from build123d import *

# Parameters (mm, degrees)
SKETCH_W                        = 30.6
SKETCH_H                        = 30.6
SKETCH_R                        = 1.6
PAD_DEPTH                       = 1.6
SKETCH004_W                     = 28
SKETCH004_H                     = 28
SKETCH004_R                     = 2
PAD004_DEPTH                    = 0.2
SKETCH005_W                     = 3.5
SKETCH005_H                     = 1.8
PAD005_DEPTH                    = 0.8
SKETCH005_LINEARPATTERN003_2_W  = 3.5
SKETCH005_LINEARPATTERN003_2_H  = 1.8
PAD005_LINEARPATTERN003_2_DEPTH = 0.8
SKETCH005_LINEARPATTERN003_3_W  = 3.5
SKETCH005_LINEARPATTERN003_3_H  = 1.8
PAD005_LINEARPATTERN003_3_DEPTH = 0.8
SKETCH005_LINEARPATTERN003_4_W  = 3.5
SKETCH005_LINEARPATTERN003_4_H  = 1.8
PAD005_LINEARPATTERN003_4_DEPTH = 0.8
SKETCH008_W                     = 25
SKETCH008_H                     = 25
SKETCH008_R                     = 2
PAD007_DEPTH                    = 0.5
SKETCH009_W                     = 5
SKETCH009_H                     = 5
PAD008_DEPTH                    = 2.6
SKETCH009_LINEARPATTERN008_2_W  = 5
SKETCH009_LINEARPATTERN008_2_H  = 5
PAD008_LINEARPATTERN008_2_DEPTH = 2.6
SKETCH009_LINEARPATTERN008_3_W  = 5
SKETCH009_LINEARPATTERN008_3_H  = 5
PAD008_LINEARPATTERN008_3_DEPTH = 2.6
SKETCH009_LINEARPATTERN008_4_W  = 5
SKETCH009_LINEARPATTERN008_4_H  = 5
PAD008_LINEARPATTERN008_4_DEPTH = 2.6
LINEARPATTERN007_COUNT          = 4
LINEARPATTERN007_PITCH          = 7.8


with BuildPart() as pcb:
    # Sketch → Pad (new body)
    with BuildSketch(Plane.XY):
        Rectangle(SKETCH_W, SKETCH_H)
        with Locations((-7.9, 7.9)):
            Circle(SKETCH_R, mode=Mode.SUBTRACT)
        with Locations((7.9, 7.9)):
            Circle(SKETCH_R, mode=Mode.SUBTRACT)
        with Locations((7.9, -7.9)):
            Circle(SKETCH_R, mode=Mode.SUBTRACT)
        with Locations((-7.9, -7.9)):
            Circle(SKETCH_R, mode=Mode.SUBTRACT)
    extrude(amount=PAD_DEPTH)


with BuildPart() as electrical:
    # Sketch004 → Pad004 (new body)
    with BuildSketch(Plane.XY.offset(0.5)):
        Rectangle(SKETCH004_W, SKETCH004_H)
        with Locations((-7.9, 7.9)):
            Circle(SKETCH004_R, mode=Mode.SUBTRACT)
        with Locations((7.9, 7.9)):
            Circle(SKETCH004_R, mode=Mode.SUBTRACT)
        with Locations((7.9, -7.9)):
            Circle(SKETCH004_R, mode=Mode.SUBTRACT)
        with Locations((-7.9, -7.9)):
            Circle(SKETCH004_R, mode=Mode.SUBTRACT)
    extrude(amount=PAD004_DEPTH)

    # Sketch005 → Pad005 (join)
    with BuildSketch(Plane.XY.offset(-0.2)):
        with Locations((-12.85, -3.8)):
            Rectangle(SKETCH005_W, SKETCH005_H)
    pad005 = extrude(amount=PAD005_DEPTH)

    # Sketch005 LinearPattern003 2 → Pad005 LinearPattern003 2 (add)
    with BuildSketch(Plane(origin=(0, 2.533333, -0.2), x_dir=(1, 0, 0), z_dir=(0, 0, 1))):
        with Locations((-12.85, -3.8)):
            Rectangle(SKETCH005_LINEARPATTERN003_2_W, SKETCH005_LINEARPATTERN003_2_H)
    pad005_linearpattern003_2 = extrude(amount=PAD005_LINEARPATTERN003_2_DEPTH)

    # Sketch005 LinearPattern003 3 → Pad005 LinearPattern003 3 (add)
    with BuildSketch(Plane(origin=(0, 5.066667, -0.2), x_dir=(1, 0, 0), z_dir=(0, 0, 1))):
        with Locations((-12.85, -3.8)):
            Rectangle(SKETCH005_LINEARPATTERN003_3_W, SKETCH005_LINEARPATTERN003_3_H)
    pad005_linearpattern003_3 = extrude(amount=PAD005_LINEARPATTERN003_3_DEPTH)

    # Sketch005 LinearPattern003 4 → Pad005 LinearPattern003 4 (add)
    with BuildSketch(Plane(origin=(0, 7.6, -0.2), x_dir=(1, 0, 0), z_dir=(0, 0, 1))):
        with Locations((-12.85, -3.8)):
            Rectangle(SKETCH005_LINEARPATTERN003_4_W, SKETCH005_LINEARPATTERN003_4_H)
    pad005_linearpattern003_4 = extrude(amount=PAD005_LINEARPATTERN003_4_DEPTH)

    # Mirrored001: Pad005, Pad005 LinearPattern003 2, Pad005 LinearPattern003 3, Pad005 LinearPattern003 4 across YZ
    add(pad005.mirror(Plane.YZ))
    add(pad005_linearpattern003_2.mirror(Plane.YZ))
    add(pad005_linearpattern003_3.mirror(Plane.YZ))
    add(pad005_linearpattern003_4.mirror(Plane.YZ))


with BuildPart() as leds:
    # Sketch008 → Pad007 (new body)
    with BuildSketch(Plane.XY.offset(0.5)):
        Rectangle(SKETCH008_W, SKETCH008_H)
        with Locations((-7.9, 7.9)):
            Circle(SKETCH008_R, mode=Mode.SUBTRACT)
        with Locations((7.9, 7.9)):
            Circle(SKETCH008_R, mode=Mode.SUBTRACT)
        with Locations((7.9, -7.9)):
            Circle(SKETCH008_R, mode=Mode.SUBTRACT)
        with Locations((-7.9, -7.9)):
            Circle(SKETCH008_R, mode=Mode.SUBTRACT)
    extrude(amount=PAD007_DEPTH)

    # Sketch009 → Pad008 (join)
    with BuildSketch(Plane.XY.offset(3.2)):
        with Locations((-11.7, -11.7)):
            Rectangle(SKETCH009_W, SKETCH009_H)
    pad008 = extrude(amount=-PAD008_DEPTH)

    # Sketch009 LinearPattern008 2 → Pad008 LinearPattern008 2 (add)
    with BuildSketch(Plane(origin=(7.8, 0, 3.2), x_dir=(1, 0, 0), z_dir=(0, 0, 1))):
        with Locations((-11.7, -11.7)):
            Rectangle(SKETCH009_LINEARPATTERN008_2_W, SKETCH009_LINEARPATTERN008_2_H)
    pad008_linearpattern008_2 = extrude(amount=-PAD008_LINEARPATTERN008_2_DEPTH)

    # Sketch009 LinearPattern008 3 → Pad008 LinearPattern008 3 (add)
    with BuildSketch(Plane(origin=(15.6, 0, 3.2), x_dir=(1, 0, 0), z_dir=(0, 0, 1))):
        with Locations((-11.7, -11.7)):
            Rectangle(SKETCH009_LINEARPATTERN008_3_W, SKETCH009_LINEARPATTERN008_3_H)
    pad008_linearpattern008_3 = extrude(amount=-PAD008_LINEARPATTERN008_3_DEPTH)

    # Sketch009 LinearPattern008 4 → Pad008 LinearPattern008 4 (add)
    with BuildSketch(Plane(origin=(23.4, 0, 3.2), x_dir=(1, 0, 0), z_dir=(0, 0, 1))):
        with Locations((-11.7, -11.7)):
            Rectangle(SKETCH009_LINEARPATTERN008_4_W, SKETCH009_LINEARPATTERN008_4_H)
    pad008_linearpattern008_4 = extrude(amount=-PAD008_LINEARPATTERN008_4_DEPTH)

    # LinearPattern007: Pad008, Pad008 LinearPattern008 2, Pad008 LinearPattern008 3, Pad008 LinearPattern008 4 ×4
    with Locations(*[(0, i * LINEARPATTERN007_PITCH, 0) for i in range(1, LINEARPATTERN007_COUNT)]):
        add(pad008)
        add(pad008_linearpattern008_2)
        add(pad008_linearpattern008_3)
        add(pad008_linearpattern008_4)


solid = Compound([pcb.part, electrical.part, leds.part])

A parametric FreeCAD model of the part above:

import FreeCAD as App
import Part
import Sketcher

V = App.Vector


def add_polygon(sketch, points):
    """Adds a closed chain of lines whose ends are joined by coincident constraints."""
    first, n = sketch.GeometryCount, len(points)
    for a, b in zip(points, points[1:] + points[:1]):
        sketch.addGeometry(Part.LineSegment(App.Vector(*a, 0), App.Vector(*b, 0)), False)
    for i in range(n):
        sketch.addConstraint(Sketcher.Constraint("Coincident", first + i, 2, first + (i + 1) % n, 1))

doc = App.newDocument("Part")
body = doc.addObject("PartDesign::Body", "Body")

sketch1 = body.newObject("Sketcher::SketchObject", "Sketch")
sketch1.AttachmentSupport = (doc.getObject("XY_Plane"), [""])
sketch1.MapMode = "FlatFace"
add_polygon(sketch1, [(-15.3, 15.3), (-15.3, -15.3), (15.3, -15.3), (15.3, 15.3)])
sketch1.addGeometry(Part.Circle(V(-7.9, -7.9, 0), V(0, 0, 1), 1.6), False)
sketch1.addGeometry(Part.Circle(V(7.9, -7.9, 0), V(0, 0, 1), 1.6), False)
sketch1.addGeometry(Part.Circle(V(-7.9, 7.9, 0), V(0, 0, 1), 1.6), False)
sketch1.addGeometry(Part.Circle(V(7.9, 7.9, 0), V(0, 0, 1), 1.6), False)
sketch1.addConstraint([
    Sketcher.Constraint("Vertical", 0),
    Sketcher.Constraint("Horizontal", 1),
    Sketcher.Constraint("Vertical", 2),
    Sketcher.Constraint("Horizontal", 3),
    Sketcher.Constraint("Equal", 4, 5),
    Sketcher.Constraint("Equal", 5, 6),
    Sketcher.Constraint("Equal", 6, 7),
    Sketcher.Constraint("Symmetric", 5, 3, 6, 3, -1, 1),
    Sketcher.Constraint("Symmetric", 4, 3, 7, 3, -1, 1),
    Sketcher.Constraint("Symmetric", 0, 2, 2, 2, -1, 1),
    Sketcher.Constraint("Symmetric", 4, 3, 5, 3, -2),
    Sketcher.Constraint("Equal", 3, 0),
    Sketcher.Constraint("Diameter", 4, 3.2),
    Sketcher.Constraint("DistanceX", 1, 1, 1, 2, 30.6),
    Sketcher.Constraint("DistanceX", 4, 3, -1, 1, 7.9),
    Sketcher.Constraint("DistanceY", 4, 3, -1, 1, 7.9),
])
pad1 = body.newObject("PartDesign::Pad", "Pad")
pad1.Profile = sketch1
pad1.Length = 1.6
body2 = doc.addObject("PartDesign::Body", "Body001")

sketch2 = body2.newObject("Sketcher::SketchObject", "Sketch001")
sketch2.AttachmentSupport = (doc.getObject("XY_Plane001"), [""])
sketch2.MapMode = "FlatFace"
sketch2.AttachmentOffset = App.Placement(V(0, 0, 0.5), App.Rotation())
add_polygon(sketch2, [(-14, 14), (-14, -14), (14, -14), (14, 14)])
sketch2.addGeometry(Part.Circle(V(-7.9, -7.9, 0), V(0, 0, 1), 2), False)
sketch2.addGeometry(Part.Circle(V(7.9, -7.9, 0), V(0, 0, 1), 2), False)
sketch2.addGeometry(Part.Circle(V(-7.9, 7.9, 0), V(0, 0, 1), 2), False)
sketch2.addGeometry(Part.Circle(V(7.9, 7.9, 0), V(0, 0, 1), 2), False)
sketch2.addConstraint([
    Sketcher.Constraint("Vertical", 0),
    Sketcher.Constraint("Horizontal", 1),
    Sketcher.Constraint("Vertical", 2),
    Sketcher.Constraint("Horizontal", 3),
    Sketcher.Constraint("Equal", 4, 5),
    Sketcher.Constraint("Equal", 5, 6),
    Sketcher.Constraint("Equal", 6, 7),
    Sketcher.Constraint("Symmetric", 5, 3, 6, 3, -1, 1),
    Sketcher.Constraint("Symmetric", 4, 3, 7, 3, -1, 1),
    Sketcher.Constraint("Symmetric", 0, 2, 2, 2, -1, 1),
    Sketcher.Constraint("Symmetric", 4, 3, 5, 3, -2),
    Sketcher.Constraint("Equal", 3, 0),
    Sketcher.Constraint("Diameter", 4, 4.0),
    Sketcher.Constraint("DistanceX", 1, 1, 1, 2, 28.0),
    Sketcher.Constraint("DistanceX", 4, 3, -1, 1, 7.9),
    Sketcher.Constraint("DistanceY", 4, 3, -1, 1, 7.9),
])
pad2 = body2.newObject("PartDesign::Pad", "Pad001")
pad2.Profile = sketch2
pad2.Length = 0.2

sketch3 = body2.newObject("Sketcher::SketchObject", "Sketch002")
sketch3.AttachmentSupport = (doc.getObject("XY_Plane001"), [""])
sketch3.MapMode = "FlatFace"
sketch3.AttachmentOffset = App.Placement(V(0, 0, -0.2), App.Rotation())
add_polygon(sketch3, [(-14.6, -2.9), (-14.6, -4.7), (-11.1, -4.7), (-11.1, -2.9)])
sketch3.addConstraint([
    Sketcher.Constraint("Vertical", 0),
    Sketcher.Constraint("Horizontal", 1),
    Sketcher.Constraint("Vertical", 2),
    Sketcher.Constraint("Horizontal", 3),
    Sketcher.Constraint("DistanceX", 1, 1, 1, 2, 3.5),
    Sketcher.Constraint("DistanceY", 0, 2, 0, 1, 1.8),
    Sketcher.Constraint("DistanceX", 0, 2, -1, 1, 14.6),
    Sketcher.Constraint("DistanceY", 0, 2, -1, 1, 4.7),
])
pad3 = body2.newObject("PartDesign::Pad", "Pad002")
pad3.Profile = sketch3
pad3.Length = 0.8

sketch4 = body2.newObject("Sketcher::SketchObject", "Sketch003")
sketch4.AttachmentSupport = (doc.getObject("XY_Plane001"), [""])
sketch4.MapMode = "FlatFace"
sketch4.AttachmentOffset = App.Placement(V(0, 0, -0.2), App.Rotation())
add_polygon(sketch4, [(-14.6, -0.4), (-14.6, -2.2), (-11.1, -2.2), (-11.1, -0.4)])
sketch4.addConstraint([
    Sketcher.Constraint("Vertical", 0),
    Sketcher.Constraint("Horizontal", 1),
    Sketcher.Constraint("Vertical", 2),
    Sketcher.Constraint("Horizontal", 3),
    Sketcher.Constraint("DistanceX", 1, 1, 1, 2, 3.5),
    Sketcher.Constraint("DistanceY", 0, 2, 0, 1, 1.8),
    Sketcher.Constraint("DistanceX", 0, 2, -1, 1, 14.6),
    Sketcher.Constraint("DistanceY", 0, 2, -1, 1, 2.166667),
])
pad4 = body2.newObject("PartDesign::Pad", "Pad003")
pad4.Profile = sketch4
pad4.Length = 0.8

sketch5 = body2.newObject("Sketcher::SketchObject", "Sketch004")
sketch5.AttachmentSupport = (doc.getObject("XY_Plane001"), [""])
sketch5.MapMode = "FlatFace"
sketch5.AttachmentOffset = App.Placement(V(0, 0, -0.2), App.Rotation())
add_polygon(sketch5, [(-14.6, 2.2), (-14.6, 0.4), (-11.1, 0.4), (-11.1, 2.2)])
sketch5.addConstraint([
    Sketcher.Constraint("Vertical", 0),
    Sketcher.Constraint("Horizontal", 1),
    Sketcher.Constraint("Vertical", 2),
    Sketcher.Constraint("Horizontal", 3),
    Sketcher.Constraint("DistanceX", 1, 1, 1, 2, 3.5),
    Sketcher.Constraint("DistanceY", 0, 2, 0, 1, 1.8),
    Sketcher.Constraint("DistanceX", 0, 2, -1, 1, 14.6),
    Sketcher.Constraint("DistanceY", -1, 1, 0, 2, 0.366667),
])
pad5 = body2.newObject("PartDesign::Pad", "Pad004")
pad5.Profile = sketch5
pad5.Length = 0.8

sketch6 = body2.newObject("Sketcher::SketchObject", "Sketch005")
sketch6.AttachmentSupport = (doc.getObject("XY_Plane001"), [""])
sketch6.MapMode = "FlatFace"
sketch6.AttachmentOffset = App.Placement(V(0, 0, -0.2), App.Rotation())
add_polygon(sketch6, [(-14.6, 4.7), (-14.6, 2.9), (-11.1, 2.9), (-11.1, 4.7)])
sketch6.addConstraint([
    Sketcher.Constraint("Vertical", 0),
    Sketcher.Constraint("Horizontal", 1),
    Sketcher.Constraint("Vertical", 2),
    Sketcher.Constraint("Horizontal", 3),
    Sketcher.Constraint("DistanceX", 1, 1, 1, 2, 3.5),
    Sketcher.Constraint("DistanceY", 0, 2, 0, 1, 1.8),
    Sketcher.Constraint("DistanceX", 0, 2, -1, 1, 14.6),
    Sketcher.Constraint("DistanceY", -1, 1, 0, 2, 2.9),
])
pad6 = body2.newObject("PartDesign::Pad", "Pad005")
pad6.Profile = sketch6
pad6.Length = 0.8
doc.recompute()

mirrored = body2.newObject("PartDesign::Mirrored", "Mirrored")
mirrored.Originals = [pad3, pad4, pad5, pad6]
mirrored.MirrorPlane = (doc.getObject("YZ_Plane001"), [""])
body2.Tip = mirrored
body3 = doc.addObject("PartDesign::Body", "Body002")

sketch7 = body3.newObject("Sketcher::SketchObject", "Sketch006")
sketch7.AttachmentSupport = (doc.getObject("XY_Plane002"), [""])
sketch7.MapMode = "FlatFace"
sketch7.AttachmentOffset = App.Placement(V(0, 0, 0.5), App.Rotation())
add_polygon(sketch7, [(-12.5, 12.5), (-12.5, -12.5), (12.5, -12.5), (12.5, 12.5)])
sketch7.addGeometry(Part.Circle(V(-7.9, -7.9, 0), V(0, 0, 1), 2), False)
sketch7.addGeometry(Part.Circle(V(7.9, -7.9, 0), V(0, 0, 1), 2), False)
sketch7.addGeometry(Part.Circle(V(-7.9, 7.9, 0), V(0, 0, 1), 2), False)
sketch7.addGeometry(Part.Circle(V(7.9, 7.9, 0), V(0, 0, 1), 2), False)
sketch7.addConstraint([
    Sketcher.Constraint("Vertical", 0),
    Sketcher.Constraint("Horizontal", 1),
    Sketcher.Constraint("Vertical", 2),
    Sketcher.Constraint("Horizontal", 3),
    Sketcher.Constraint("Equal", 4, 5),
    Sketcher.Constraint("Equal", 5, 6),
    Sketcher.Constraint("Equal", 6, 7),
    Sketcher.Constraint("Symmetric", 5, 3, 6, 3, -1, 1),
    Sketcher.Constraint("Symmetric", 4, 3, 7, 3, -1, 1),
    Sketcher.Constraint("Symmetric", 0, 2, 2, 2, -1, 1),
    Sketcher.Constraint("Symmetric", 4, 3, 5, 3, -2),
    Sketcher.Constraint("Equal", 3, 0),
    Sketcher.Constraint("Diameter", 4, 4.0),
    Sketcher.Constraint("DistanceX", 1, 1, 1, 2, 25.0),
    Sketcher.Constraint("DistanceX", 4, 3, -1, 1, 7.9),
    Sketcher.Constraint("DistanceY", 4, 3, -1, 1, 7.9),
])
pad7 = body3.newObject("PartDesign::Pad", "Pad006")
pad7.Profile = sketch7
pad7.Length = 0.5

sketch8 = body3.newObject("Sketcher::SketchObject", "Sketch007")
sketch8.AttachmentSupport = (doc.getObject("XY_Plane002"), [""])
sketch8.MapMode = "FlatFace"
sketch8.AttachmentOffset = App.Placement(V(0, 0, 3.2), App.Rotation())
add_polygon(sketch8, [(-14, -9), (-14, -14), (-9, -14), (-9, -9)])
sketch8.addConstraint([
    Sketcher.Constraint("Vertical", 0),
    Sketcher.Constraint("Horizontal", 1),
    Sketcher.Constraint("Vertical", 2),
    Sketcher.Constraint("Horizontal", 3),
    Sketcher.Constraint("Equal", 3, 0),
    Sketcher.Constraint("DistanceX", 1, 1, 1, 2, 5.0),
    Sketcher.Constraint("DistanceX", 0, 2, -1, 1, 14.2),
    Sketcher.Constraint("DistanceY", 0, 2, -1, 1, 14.2),
])
pad8 = body3.newObject("PartDesign::Pad", "Pad007")
pad8.Profile = sketch8
pad8.Length = 2.6
pad8.Reversed = True

sketch9 = body3.newObject("Sketcher::SketchObject", "Sketch008")
sketch9.AttachmentSupport = (doc.getObject("XY_Plane002"), [""])
sketch9.MapMode = "FlatFace"
sketch9.AttachmentOffset = App.Placement(V(0, 0, 3.2), App.Rotation())
add_polygon(sketch9, [(-6, -9), (-6, -14), (-1, -14), (-1, -9)])
sketch9.addConstraint([
    Sketcher.Constraint("Vertical", 0),
    Sketcher.Constraint("Horizontal", 1),
    Sketcher.Constraint("Vertical", 2),
    Sketcher.Constraint("Horizontal", 3),
    Sketcher.Constraint("Equal", 3, 0),
    Sketcher.Constraint("DistanceX", 1, 1, 1, 2, 5.0),
    Sketcher.Constraint("DistanceX", 0, 2, -1, 1, 6.4),
    Sketcher.Constraint("DistanceY", 0, 2, -1, 1, 14.2),
])
pad9 = body3.newObject("PartDesign::Pad", "Pad008")
pad9.Profile = sketch9
pad9.Length = 2.6
pad9.Reversed = True

sketch10 = body3.newObject("Sketcher::SketchObject", "Sketch009")
sketch10.AttachmentSupport = (doc.getObject("XY_Plane002"), [""])
sketch10.MapMode = "FlatFace"
sketch10.AttachmentOffset = App.Placement(V(0, 0, 3.2), App.Rotation())
add_polygon(sketch10, [(1, -9), (1, -14), (6, -14), (6, -9)])
sketch10.addConstraint([
    Sketcher.Constraint("Vertical", 0),
    Sketcher.Constraint("Horizontal", 1),
    Sketcher.Constraint("Vertical", 2),
    Sketcher.Constraint("Horizontal", 3),
    Sketcher.Constraint("Equal", 3, 0),
    Sketcher.Constraint("DistanceX", 1, 1, 1, 2, 5.0),
    Sketcher.Constraint("DistanceX", -1, 1, 0, 2, 1.4),
    Sketcher.Constraint("DistanceY", 0, 2, -1, 1, 14.2),
])
pad10 = body3.newObject("PartDesign::Pad", "Pad009")
pad10.Profile = sketch10
pad10.Length = 2.6
pad10.Reversed = True

sketch11 = body3.newObject("Sketcher::SketchObject", "Sketch010")
sketch11.AttachmentSupport = (doc.getObject("XY_Plane002"), [""])
sketch11.MapMode = "FlatFace"
sketch11.AttachmentOffset = App.Placement(V(0, 0, 3.2), App.Rotation())
add_polygon(sketch11, [(9, -9), (9, -14), (14, -14), (14, -9)])
sketch11.addConstraint([
    Sketcher.Constraint("Vertical", 0),
    Sketcher.Constraint("Horizontal", 1),
    Sketcher.Constraint("Vertical", 2),
    Sketcher.Constraint("Horizontal", 3),
    Sketcher.Constraint("Equal", 3, 0),
    Sketcher.Constraint("DistanceX", 1, 1, 1, 2, 5.0),
    Sketcher.Constraint("DistanceX", -1, 1, 0, 2, 9.2),
    Sketcher.Constraint("DistanceY", 0, 2, -1, 1, 14.2),
])
pad11 = body3.newObject("PartDesign::Pad", "Pad010")
pad11.Profile = sketch11
pad11.Length = 2.6
pad11.Reversed = True
doc.recompute()

linearpattern = body3.newObject("PartDesign::LinearPattern", "LinearPattern")
linearpattern.Originals = [pad8, pad9, pad10, pad11]
linearpattern.Direction = (doc.getObject("Y_Axis002"), [""])
linearpattern.Mode = "offset"
linearpattern.Offset = 7.8
linearpattern.Occurrences = 4
body3.Tip = linearpattern

doc.recompute()
